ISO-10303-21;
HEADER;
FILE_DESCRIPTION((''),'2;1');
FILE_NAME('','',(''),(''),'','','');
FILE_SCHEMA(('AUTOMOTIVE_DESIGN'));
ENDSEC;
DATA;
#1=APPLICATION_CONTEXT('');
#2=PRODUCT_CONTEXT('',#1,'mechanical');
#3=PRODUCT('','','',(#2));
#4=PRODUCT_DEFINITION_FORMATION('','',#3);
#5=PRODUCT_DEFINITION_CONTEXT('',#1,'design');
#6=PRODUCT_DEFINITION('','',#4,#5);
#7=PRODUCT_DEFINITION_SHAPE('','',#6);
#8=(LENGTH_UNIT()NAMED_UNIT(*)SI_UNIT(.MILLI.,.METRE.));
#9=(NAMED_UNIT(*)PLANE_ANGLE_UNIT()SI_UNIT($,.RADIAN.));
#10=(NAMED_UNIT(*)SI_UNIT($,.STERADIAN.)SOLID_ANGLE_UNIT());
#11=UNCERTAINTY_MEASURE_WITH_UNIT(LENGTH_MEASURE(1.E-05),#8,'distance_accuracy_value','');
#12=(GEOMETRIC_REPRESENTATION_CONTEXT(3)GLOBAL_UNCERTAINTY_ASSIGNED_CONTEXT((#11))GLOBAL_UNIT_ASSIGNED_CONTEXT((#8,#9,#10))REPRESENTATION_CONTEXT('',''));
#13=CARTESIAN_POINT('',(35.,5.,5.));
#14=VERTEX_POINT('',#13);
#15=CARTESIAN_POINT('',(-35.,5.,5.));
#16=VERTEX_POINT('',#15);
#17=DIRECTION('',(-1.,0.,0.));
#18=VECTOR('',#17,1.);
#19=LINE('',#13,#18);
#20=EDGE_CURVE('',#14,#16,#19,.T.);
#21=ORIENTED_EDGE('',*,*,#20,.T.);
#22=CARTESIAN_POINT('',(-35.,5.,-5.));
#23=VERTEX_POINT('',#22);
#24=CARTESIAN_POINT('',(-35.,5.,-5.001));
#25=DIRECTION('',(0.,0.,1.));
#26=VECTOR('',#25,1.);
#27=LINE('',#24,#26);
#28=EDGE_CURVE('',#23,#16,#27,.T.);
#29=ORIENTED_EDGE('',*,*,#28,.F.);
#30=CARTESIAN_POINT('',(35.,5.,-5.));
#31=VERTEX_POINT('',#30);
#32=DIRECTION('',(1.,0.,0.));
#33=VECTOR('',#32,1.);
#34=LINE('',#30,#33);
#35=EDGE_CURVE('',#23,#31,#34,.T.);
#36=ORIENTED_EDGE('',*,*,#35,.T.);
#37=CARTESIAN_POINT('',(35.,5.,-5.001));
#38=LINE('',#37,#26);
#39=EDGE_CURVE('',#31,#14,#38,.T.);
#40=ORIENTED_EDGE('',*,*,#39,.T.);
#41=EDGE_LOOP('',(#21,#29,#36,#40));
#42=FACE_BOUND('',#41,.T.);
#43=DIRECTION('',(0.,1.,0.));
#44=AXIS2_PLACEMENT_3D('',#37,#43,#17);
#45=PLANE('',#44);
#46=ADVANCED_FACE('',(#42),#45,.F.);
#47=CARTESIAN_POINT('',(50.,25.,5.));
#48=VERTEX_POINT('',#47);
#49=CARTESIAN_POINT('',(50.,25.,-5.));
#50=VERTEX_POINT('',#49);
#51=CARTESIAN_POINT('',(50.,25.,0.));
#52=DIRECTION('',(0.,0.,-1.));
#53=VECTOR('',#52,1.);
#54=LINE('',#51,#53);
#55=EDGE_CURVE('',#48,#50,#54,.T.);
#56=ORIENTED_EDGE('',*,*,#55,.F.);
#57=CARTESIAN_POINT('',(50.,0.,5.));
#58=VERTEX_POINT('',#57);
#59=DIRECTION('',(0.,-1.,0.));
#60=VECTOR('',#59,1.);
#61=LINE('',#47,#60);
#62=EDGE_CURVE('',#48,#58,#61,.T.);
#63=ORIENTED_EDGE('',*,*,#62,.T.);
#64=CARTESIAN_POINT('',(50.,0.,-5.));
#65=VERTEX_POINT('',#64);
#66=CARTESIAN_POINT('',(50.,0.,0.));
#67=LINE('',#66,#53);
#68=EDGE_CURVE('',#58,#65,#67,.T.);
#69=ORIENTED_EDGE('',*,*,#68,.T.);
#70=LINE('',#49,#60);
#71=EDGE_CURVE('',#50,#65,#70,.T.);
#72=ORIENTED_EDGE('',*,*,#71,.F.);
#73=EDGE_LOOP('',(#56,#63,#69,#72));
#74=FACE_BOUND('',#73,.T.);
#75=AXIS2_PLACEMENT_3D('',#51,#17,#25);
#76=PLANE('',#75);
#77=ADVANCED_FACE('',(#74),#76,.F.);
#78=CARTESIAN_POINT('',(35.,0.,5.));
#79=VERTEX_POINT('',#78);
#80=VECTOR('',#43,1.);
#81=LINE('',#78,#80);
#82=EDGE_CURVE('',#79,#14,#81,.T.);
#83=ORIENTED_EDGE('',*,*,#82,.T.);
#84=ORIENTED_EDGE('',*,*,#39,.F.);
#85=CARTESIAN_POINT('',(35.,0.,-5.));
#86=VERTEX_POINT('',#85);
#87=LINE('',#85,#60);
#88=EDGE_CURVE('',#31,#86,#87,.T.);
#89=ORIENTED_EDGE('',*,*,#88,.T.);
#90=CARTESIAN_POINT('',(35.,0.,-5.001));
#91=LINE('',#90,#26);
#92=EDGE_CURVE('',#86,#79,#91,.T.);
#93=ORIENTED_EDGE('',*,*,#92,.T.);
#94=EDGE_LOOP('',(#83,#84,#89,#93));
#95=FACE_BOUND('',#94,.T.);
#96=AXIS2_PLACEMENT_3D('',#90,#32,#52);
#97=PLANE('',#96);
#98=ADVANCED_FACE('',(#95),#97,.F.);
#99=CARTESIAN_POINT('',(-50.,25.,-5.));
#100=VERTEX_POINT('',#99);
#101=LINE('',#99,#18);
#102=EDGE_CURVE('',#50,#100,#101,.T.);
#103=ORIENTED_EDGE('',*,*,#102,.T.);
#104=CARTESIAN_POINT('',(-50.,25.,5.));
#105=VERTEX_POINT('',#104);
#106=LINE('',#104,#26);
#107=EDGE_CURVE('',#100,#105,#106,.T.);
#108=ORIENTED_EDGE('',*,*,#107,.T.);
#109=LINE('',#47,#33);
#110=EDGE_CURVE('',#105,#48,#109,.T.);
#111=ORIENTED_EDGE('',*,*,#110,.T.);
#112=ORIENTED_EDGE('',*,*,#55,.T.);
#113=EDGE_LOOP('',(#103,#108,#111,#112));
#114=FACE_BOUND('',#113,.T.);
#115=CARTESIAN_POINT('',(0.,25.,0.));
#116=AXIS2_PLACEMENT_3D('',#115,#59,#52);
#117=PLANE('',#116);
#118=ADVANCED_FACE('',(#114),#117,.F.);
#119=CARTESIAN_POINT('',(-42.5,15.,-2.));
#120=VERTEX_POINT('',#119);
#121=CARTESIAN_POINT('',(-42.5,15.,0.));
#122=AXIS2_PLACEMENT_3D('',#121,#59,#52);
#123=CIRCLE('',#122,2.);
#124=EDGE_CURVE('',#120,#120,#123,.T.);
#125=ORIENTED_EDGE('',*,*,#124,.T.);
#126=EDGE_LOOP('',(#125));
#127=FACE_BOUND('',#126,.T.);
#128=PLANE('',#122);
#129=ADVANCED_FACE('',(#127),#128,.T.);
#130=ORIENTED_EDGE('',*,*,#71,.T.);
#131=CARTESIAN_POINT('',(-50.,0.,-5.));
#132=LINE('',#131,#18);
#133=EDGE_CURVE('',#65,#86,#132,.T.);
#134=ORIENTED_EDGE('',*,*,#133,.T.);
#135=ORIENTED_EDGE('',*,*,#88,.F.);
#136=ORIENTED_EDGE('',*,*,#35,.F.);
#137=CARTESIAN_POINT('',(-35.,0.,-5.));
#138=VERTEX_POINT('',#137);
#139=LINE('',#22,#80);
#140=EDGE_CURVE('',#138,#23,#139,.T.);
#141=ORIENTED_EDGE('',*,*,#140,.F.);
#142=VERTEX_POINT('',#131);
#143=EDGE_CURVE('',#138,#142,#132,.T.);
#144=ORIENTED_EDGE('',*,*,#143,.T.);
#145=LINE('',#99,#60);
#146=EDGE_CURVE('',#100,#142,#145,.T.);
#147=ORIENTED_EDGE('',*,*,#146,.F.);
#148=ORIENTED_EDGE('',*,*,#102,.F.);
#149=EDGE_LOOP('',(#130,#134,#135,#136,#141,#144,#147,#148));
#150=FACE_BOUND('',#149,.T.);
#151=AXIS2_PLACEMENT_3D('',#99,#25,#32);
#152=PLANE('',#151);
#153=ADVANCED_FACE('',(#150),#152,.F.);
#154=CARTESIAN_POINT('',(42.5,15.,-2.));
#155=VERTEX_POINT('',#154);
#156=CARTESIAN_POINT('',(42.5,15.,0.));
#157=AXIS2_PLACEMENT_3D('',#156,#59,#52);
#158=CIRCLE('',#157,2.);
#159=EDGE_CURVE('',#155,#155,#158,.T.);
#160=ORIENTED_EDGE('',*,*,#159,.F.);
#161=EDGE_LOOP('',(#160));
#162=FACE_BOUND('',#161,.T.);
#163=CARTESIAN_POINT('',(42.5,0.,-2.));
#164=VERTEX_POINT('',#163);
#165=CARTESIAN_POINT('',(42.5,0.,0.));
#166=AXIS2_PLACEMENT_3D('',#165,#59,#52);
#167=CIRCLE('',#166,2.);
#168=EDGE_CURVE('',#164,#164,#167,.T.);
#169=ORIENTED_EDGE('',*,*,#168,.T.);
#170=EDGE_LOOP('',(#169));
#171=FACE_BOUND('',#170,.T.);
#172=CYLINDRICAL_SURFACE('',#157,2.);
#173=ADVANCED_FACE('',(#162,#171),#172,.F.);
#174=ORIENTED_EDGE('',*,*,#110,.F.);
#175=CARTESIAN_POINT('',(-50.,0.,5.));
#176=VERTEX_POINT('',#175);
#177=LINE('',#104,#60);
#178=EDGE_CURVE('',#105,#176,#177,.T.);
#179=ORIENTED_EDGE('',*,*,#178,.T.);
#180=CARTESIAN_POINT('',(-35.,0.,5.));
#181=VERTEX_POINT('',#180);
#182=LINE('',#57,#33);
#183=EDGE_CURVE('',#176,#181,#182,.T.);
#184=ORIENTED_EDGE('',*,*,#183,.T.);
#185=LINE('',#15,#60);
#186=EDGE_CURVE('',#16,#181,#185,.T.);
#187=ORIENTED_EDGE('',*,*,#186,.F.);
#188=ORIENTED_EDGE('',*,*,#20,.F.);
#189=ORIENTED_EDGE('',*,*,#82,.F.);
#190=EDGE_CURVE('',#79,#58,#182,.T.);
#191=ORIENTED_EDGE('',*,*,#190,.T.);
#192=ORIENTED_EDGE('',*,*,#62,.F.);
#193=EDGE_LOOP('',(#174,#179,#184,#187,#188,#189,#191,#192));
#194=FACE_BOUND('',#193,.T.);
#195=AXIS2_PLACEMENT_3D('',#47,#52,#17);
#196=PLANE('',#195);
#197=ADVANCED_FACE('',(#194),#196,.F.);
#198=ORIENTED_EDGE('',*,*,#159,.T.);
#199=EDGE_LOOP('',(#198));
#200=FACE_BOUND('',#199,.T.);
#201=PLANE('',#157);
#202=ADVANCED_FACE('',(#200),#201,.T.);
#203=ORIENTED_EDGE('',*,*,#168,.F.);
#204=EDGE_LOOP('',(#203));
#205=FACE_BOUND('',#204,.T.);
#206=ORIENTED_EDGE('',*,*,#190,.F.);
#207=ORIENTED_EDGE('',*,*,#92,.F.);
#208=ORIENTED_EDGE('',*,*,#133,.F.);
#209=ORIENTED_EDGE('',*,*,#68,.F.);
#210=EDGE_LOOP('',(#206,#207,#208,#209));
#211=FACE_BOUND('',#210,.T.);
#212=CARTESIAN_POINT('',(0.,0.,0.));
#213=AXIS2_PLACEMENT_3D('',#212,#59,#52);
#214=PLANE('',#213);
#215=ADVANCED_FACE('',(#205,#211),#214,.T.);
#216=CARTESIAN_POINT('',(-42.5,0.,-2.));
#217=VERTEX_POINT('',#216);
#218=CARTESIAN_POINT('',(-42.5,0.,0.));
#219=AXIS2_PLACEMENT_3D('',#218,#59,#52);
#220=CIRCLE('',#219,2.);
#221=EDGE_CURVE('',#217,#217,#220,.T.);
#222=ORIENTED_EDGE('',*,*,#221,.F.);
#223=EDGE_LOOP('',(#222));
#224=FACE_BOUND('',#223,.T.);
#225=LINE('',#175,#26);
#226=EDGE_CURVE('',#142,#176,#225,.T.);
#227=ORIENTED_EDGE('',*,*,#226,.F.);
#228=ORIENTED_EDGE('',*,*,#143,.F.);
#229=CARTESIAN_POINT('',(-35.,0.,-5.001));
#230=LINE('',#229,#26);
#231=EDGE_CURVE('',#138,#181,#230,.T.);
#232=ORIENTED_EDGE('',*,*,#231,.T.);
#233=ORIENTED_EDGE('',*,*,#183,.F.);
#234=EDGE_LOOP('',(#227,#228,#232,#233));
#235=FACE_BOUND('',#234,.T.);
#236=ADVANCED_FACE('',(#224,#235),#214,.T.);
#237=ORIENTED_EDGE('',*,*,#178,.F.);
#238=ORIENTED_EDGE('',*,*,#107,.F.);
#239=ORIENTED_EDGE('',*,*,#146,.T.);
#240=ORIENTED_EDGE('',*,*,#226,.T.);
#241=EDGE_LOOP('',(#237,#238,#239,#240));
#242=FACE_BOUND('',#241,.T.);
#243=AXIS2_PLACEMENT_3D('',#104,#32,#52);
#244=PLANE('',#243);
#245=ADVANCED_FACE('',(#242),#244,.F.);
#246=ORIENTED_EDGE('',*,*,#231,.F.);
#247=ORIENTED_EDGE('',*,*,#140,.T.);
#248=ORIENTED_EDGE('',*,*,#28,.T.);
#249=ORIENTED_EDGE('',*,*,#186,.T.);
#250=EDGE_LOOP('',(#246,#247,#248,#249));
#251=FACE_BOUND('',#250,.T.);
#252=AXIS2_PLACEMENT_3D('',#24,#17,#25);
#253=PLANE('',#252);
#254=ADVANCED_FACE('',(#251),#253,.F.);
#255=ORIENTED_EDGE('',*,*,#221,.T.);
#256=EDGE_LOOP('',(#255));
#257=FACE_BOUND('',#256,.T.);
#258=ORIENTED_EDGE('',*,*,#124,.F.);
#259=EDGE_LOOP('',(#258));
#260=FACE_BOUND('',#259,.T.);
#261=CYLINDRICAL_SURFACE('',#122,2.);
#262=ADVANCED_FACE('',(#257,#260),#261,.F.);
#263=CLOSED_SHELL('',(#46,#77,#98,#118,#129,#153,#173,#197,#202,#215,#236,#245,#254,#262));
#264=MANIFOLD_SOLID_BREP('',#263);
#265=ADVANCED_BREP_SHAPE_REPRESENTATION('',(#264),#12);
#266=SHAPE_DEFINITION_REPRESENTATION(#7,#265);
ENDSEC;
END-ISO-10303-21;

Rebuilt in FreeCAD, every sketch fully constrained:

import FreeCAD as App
import Part
import Sketcher
Q = App.Units.Quantity


def add_polygon(sketch, points):
    """Adds a closed chain of lines whose ends are joined by coincident constraints."""
    first, n = sketch.GeometryCount, len(points)
    for a, b in zip(points, points[1:] + points[:1]):
        sketch.addGeometry(Part.LineSegment(App.Vector(*a, 0), App.Vector(*b, 0)), False)
    for i in range(n):
        sketch.addConstraint(Sketcher.Constraint("Coincident", first + i, 2, first + (i + 1) % n, 1))

doc = App.newDocument("Part")
params = doc.addObject("Spreadsheet::Sheet", "Params")
for row, (alias, value) in enumerate([
    ("sketch1_width", "100 mm"),
    ("sketch1_height", "10 mm"),
    ("pad1_length", "25 mm"),
    ("sketch2_width", "70 mm"),
    ("sketch2_height", "5 mm"),
    ("sketch3_diameter", "4 mm"),
    ("pocket2_length", "15 mm"),
], start=1):
    params.set(f"A{row}", alias)
    params.set(f"B{row}", "=" + value)
    params.setAlias(f"B{row}", alias)

body = doc.addObject("PartDesign::Body", "Body")

# Sketch on XZ plane
sketch1 = doc.addObject("Sketcher::SketchObject", "Sketch")
body.addObject(sketch1)
sketch1.AttachmentSupport = (doc.XZ_Plane, [""])
sketch1.MapMode = "FlatFace"
add_polygon(sketch1, [(50, -5), (-50, -5), (-50, 5), (50, 5)])  # lines 0-3
sketch1.addConstraint(Sketcher.Constraint("Horizontal", 0))
sketch1.addConstraint(Sketcher.Constraint("Vertical", 1))
sketch1.addConstraint(Sketcher.Constraint("Horizontal", 2))
sketch1.addConstraint(Sketcher.Constraint("Vertical", 3))
sketch1.addConstraint(Sketcher.Constraint("Symmetric", 0, 2, 2, 2, -1, 1))
sketch1.addConstraint(Sketcher.Constraint("DistanceX", 0, 2, 0, 1, Q("100 mm")))
sketch1.addConstraint(Sketcher.Constraint("DistanceY", 1, 1, 1, 2, Q("10 mm")))
sketch1.setExpression("Constraints[9]", "Params.sketch1_width")
sketch1.setExpression("Constraints[10]", "Params.sketch1_height")
pad1 = doc.addObject("PartDesign::Pad", "Pad")
body.addObject(pad1)
pad1.Profile = sketch1
pad1.setExpression("Length", "Params.pad1_length")
pad1.Reversed = True

# Sketch on XY plane
sketch2 = doc.addObject("Sketcher::SketchObject", "Sketch001")
body.addObject(sketch2)
sketch2.AttachmentSupport = (doc.XY_Plane, [""])
sketch2.MapMode = "FlatFace"
sketch2.AttachmentOffset = App.Placement(App.Vector(0, 0, 5), App.Rotation())
add_polygon(sketch2, [(35, 0), (35, 5), (-35, 5), (-35, 0)])  # lines 0-3
sketch2.addConstraint(Sketcher.Constraint("Vertical", 0))
sketch2.addConstraint(Sketcher.Constraint("Horizontal", 1))
sketch2.addConstraint(Sketcher.Constraint("Vertical", 2))
sketch2.addConstraint(Sketcher.Constraint("Horizontal", 3))
sketch2.addConstraint(Sketcher.Constraint("Symmetric", 2, 2, 3, 2, -1, 1))
sketch2.addConstraint(Sketcher.Constraint("DistanceX", 1, 2, 1, 1, Q("70 mm")))
sketch2.addConstraint(Sketcher.Constraint("DistanceY", 0, 1, 0, 2, Q("5 mm")))
sketch2.setExpression("Constraints[9]", "Params.sketch2_width")
sketch2.setExpression("Constraints[10]", "Params.sketch2_height")
pocket1 = doc.addObject("PartDesign::Pocket", "Pocket")
body.addObject(pocket1)
pocket1.Profile = sketch2
pocket1.Type = "UpToFirst"

# Sketch on XZ plane
sketch3 = doc.addObject("Sketcher::SketchObject", "Sketch002")
body.addObject(sketch3)
sketch3.AttachmentSupport = (doc.XZ_Plane, [""])
sketch3.MapMode = "FlatFace"
sketch3.addGeometry(Part.Circle(App.Vector(-42.5, 0, 0), App.Vector(0, 0, 1), 2), False)
sketch3.addGeometry(Part.Circle(App.Vector(42.5, 0, 0), App.Vector(0, 0, 1), 2), False)
sketch3.addConstraint(Sketcher.Constraint("Equal", 0, 1))
sketch3.addConstraint(Sketcher.Constraint("Symmetric", 0, 3, 1, 3, -1, 1))
sketch3.addConstraint(Sketcher.Constraint("PointOnObject", 0, 3, -1))
sketch3.addConstraint(Sketcher.Constraint("Diameter", 0, Q("4 mm")))
sketch3.addConstraint(Sketcher.Constraint("DistanceX", 0, 3, 1, 3, Q("85 mm")))
sketch3.setExpression("Constraints[3]", "Params.sketch3_diameter")
pocket2 = doc.addObject("PartDesign::Pocket", "Pocket001")
body.addObject(pocket2)
pocket2.Profile = sketch3
pocket2.setExpression("Length", "Params.pocket2_length")

doc.recompute()
